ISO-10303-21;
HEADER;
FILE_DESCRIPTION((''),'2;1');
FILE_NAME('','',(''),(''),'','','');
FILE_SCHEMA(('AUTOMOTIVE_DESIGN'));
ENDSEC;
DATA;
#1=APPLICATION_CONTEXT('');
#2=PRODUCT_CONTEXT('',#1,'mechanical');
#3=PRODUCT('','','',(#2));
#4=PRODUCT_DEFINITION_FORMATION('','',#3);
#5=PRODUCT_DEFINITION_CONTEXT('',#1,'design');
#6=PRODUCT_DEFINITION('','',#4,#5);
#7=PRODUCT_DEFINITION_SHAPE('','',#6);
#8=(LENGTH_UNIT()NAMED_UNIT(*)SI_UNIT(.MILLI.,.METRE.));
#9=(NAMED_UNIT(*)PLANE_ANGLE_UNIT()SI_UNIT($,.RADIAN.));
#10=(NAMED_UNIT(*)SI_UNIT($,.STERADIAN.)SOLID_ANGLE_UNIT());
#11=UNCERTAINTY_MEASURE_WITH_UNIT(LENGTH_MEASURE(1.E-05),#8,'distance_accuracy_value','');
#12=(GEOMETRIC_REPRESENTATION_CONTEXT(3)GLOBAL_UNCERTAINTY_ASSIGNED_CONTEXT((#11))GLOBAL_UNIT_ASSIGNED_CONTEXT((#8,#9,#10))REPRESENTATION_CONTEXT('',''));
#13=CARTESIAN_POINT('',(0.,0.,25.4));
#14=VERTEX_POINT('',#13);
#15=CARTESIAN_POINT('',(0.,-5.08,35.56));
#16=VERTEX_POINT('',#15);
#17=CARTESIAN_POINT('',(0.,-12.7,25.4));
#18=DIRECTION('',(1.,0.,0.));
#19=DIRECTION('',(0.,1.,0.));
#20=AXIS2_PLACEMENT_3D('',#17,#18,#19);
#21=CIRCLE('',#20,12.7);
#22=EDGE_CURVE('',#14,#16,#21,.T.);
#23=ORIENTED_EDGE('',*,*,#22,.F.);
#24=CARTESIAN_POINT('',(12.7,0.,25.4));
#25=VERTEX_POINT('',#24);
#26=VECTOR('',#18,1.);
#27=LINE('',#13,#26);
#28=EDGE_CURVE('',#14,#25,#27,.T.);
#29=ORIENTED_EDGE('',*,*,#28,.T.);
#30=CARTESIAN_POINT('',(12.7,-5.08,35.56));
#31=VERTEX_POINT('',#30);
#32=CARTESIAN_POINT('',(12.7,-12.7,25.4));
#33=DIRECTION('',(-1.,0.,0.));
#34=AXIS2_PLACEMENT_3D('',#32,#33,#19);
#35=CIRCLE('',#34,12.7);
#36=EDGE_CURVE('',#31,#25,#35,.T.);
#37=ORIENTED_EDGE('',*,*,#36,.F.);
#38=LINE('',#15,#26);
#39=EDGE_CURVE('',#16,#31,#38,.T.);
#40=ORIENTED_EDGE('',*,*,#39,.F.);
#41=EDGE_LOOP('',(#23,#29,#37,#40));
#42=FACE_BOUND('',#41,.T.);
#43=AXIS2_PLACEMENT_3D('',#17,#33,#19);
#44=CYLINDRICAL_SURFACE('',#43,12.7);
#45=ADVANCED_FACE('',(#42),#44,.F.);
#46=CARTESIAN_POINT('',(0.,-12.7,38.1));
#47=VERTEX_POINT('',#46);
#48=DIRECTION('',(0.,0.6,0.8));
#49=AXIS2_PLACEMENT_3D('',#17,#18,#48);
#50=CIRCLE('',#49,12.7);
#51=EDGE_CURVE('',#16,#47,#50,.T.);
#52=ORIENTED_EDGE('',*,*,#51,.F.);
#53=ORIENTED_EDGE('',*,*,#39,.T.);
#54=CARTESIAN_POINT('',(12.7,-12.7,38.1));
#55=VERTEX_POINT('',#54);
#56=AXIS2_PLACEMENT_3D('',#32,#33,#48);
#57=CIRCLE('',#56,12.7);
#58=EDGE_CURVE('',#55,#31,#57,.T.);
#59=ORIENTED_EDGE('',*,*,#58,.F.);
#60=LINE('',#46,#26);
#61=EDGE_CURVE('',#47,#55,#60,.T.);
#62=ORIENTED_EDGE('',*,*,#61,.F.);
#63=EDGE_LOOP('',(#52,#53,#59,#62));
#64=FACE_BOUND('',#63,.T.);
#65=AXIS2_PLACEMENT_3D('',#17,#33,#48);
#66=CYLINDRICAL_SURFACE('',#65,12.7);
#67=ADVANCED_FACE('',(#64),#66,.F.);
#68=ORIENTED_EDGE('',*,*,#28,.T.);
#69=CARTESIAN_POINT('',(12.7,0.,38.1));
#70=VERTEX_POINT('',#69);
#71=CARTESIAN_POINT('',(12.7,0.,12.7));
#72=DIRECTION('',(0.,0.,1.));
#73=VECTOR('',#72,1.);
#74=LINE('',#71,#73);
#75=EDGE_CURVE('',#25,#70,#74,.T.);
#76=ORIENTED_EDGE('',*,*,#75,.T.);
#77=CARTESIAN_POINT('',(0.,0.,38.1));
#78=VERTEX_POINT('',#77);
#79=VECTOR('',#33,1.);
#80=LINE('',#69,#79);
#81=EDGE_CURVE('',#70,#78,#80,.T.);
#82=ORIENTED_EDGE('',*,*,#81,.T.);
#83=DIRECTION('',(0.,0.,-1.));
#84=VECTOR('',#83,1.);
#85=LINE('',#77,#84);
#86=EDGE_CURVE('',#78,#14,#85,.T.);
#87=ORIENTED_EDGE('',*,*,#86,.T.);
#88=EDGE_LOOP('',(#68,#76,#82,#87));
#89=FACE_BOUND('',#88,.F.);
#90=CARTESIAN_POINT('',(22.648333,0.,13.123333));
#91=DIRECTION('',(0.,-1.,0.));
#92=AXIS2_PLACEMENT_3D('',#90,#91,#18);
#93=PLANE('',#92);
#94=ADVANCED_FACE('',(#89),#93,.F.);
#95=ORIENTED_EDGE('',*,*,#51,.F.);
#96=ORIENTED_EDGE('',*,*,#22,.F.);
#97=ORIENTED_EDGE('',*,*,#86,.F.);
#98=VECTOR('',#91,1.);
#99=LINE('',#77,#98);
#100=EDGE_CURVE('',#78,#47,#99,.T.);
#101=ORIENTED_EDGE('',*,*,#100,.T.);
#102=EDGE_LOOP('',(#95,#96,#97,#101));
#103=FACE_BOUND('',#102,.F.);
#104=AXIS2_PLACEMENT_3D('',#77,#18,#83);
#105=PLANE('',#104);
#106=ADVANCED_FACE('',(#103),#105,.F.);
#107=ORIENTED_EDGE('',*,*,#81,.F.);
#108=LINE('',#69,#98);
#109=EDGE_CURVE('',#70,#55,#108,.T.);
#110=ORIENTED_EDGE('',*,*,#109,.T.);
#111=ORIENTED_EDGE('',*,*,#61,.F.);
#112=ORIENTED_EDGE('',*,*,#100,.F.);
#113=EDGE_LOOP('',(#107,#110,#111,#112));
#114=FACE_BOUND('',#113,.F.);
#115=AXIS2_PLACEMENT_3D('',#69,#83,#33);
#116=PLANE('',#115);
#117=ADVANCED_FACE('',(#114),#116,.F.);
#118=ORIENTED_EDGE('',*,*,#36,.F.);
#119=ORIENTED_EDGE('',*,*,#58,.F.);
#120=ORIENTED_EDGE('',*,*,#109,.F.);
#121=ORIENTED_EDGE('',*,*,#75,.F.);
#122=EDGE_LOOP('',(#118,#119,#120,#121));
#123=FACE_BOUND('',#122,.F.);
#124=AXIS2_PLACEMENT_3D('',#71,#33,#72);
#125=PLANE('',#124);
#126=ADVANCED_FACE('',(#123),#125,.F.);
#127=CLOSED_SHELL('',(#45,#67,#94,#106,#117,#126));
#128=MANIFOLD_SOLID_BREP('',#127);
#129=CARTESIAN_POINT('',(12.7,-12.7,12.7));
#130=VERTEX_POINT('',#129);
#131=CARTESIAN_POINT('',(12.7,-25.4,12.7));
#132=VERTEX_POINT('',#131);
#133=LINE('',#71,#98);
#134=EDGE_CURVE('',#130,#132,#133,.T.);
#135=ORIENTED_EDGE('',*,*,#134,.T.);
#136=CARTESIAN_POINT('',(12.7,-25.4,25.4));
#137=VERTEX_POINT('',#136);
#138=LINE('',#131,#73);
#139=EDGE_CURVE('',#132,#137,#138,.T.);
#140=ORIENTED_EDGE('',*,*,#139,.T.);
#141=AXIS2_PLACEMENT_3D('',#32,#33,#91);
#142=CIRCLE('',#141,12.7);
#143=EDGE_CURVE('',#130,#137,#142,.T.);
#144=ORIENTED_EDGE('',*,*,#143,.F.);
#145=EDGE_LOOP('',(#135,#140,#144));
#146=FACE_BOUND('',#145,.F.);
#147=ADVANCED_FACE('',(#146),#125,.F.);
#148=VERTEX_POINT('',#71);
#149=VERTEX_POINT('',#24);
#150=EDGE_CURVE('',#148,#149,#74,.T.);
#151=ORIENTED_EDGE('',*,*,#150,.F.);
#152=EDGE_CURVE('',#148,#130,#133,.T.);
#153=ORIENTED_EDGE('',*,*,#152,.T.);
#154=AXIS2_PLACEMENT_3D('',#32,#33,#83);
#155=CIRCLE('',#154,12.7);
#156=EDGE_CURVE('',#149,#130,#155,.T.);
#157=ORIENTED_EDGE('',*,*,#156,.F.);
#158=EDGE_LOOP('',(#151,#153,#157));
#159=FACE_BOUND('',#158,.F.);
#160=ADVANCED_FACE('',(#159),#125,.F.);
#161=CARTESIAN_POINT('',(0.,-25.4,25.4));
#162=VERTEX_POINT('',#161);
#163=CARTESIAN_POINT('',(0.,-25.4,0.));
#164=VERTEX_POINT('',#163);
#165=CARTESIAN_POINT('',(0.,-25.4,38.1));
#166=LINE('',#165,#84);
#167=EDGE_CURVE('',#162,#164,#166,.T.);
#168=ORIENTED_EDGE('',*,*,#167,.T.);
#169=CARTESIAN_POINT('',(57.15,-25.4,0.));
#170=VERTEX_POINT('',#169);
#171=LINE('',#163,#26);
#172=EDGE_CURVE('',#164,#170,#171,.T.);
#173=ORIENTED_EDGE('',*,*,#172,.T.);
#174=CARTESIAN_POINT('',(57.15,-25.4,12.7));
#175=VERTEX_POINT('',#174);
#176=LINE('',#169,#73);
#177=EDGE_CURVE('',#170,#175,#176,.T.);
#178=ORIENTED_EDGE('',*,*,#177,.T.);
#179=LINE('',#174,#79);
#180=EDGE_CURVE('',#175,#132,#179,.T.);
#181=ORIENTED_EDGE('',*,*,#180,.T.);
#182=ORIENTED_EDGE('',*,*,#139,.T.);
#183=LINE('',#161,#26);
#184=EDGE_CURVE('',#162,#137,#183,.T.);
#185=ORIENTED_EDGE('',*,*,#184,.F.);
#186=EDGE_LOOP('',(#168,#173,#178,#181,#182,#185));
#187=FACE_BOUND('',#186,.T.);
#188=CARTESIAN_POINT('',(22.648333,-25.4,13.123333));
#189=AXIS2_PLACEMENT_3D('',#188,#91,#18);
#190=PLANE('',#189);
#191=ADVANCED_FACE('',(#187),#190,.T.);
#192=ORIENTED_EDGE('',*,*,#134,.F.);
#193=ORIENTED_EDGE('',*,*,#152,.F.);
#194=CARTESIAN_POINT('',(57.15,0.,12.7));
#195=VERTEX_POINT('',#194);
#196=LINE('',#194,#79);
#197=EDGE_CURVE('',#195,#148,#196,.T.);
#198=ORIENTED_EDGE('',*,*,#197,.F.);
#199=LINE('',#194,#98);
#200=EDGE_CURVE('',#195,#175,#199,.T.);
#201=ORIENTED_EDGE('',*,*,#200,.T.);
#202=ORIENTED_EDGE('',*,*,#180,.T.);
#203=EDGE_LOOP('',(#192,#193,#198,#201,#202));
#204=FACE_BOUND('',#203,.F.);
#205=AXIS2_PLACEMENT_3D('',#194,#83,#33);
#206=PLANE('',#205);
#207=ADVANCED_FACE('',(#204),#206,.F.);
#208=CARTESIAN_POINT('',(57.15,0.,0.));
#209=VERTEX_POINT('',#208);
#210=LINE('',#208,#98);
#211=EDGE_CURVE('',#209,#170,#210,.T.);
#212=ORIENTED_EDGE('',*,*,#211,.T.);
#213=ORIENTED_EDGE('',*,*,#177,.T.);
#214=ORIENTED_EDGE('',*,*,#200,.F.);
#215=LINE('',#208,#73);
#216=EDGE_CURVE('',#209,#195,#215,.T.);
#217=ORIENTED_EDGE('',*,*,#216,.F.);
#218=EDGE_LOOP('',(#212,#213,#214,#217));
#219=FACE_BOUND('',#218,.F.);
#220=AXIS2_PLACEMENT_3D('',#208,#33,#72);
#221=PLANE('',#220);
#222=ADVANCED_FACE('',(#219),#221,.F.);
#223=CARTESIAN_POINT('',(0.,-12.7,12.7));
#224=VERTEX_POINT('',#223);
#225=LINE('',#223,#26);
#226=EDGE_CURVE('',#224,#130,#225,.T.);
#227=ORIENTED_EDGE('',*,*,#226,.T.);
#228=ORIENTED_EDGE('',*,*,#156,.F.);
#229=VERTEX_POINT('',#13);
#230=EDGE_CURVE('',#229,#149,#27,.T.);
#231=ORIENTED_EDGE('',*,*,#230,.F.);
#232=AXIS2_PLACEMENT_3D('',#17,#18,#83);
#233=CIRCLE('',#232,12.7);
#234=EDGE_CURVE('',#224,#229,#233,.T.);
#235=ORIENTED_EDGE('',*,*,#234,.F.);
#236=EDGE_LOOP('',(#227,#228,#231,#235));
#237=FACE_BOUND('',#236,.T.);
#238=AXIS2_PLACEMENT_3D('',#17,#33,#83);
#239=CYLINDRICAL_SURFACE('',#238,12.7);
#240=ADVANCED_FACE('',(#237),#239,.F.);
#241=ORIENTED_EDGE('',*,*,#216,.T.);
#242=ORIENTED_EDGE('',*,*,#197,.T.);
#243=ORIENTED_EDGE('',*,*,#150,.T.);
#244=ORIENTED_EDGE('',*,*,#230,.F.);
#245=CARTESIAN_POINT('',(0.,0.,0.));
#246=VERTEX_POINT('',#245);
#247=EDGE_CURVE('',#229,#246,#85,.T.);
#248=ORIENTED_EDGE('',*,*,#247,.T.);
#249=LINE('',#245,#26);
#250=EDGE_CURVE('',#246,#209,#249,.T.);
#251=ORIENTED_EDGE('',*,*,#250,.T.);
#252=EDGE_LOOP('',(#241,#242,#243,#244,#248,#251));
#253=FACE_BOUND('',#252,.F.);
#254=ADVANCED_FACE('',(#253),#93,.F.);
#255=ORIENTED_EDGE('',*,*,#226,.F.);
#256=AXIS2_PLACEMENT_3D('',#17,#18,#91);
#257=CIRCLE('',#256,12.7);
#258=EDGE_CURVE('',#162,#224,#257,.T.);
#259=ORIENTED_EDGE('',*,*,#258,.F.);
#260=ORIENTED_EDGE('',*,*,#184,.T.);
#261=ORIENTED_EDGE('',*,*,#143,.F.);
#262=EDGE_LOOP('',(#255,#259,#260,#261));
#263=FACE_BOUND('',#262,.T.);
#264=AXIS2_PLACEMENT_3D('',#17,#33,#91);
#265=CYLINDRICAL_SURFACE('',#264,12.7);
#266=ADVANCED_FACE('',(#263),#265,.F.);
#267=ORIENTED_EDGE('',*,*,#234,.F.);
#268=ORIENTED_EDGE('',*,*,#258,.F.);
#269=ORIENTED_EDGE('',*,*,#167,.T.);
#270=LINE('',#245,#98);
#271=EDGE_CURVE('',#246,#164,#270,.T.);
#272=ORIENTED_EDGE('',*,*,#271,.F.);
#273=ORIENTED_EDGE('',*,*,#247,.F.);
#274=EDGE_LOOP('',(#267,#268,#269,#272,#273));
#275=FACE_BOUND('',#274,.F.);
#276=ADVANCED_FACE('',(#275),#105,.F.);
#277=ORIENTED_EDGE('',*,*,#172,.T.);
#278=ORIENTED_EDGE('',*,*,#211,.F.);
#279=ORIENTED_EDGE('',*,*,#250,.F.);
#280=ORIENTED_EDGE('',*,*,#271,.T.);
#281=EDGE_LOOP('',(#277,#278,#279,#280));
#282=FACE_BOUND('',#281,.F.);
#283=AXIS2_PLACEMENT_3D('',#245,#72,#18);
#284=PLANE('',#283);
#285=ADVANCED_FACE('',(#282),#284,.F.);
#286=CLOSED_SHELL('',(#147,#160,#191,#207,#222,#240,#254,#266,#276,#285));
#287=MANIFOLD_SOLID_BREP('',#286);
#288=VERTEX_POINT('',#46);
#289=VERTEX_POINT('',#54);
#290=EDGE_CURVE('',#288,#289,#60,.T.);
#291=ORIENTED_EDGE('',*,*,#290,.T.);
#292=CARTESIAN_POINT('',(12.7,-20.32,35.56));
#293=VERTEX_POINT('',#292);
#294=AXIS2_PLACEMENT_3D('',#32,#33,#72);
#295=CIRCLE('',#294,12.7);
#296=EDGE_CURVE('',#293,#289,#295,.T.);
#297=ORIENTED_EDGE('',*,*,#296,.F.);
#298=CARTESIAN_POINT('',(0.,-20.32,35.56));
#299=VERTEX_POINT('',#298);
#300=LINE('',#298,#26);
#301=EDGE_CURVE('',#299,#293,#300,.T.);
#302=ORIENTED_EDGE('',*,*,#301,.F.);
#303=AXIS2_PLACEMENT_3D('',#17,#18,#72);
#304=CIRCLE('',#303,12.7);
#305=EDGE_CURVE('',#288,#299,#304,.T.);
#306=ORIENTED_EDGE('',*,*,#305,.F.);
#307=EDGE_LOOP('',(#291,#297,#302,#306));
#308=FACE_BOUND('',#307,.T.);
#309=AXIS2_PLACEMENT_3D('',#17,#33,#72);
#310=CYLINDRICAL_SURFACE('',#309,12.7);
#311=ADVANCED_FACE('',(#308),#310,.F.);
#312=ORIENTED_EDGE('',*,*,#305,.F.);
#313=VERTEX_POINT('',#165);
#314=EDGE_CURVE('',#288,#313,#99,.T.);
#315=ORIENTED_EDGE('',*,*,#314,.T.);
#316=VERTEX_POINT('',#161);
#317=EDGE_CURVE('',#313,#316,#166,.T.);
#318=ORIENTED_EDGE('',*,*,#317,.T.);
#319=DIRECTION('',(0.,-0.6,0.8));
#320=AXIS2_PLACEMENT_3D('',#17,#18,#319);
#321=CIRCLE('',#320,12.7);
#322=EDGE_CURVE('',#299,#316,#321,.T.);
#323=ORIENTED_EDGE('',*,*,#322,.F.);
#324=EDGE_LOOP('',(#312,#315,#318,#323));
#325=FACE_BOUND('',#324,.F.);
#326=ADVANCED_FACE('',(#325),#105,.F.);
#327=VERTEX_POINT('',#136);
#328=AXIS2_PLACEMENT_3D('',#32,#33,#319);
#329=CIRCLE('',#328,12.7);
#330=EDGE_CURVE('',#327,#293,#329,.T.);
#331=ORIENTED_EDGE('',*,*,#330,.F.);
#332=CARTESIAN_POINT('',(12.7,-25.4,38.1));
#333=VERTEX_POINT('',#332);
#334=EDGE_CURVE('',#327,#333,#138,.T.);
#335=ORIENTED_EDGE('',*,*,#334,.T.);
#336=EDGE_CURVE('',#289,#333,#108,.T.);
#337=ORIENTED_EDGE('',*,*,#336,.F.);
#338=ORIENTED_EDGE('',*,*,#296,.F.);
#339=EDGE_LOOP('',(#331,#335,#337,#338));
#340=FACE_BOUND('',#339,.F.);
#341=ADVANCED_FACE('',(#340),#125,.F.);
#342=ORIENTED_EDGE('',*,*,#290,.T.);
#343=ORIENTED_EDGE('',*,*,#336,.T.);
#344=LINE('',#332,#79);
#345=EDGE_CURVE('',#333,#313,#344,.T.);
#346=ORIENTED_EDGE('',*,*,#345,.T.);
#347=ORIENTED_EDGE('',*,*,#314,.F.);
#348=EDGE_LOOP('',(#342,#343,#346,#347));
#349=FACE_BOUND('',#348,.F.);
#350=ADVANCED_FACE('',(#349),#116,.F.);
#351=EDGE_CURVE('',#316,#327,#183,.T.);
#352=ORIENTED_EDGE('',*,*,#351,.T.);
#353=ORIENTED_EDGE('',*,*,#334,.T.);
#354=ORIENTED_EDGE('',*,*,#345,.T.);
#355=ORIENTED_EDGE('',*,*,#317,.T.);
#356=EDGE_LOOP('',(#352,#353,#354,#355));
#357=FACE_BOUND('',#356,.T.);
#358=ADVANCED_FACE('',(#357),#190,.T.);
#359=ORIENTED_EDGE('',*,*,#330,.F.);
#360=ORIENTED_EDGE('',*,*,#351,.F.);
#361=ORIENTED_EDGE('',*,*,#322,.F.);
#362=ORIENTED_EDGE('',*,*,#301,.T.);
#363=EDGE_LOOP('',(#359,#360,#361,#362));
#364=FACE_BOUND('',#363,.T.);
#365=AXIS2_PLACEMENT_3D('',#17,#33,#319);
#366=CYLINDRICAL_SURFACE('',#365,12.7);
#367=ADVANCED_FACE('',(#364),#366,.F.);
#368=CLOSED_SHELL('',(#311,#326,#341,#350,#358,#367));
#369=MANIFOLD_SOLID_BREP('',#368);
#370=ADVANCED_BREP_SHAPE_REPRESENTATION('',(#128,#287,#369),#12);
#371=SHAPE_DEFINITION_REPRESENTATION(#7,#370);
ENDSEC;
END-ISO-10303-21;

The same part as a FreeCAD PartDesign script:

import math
import FreeCAD as App
import Part
import Sketcher
Q = App.Units.Quantity


def add_polygon(sketch, points):
    """Adds a closed chain of lines whose ends are joined by coincident constraints."""
    first, n = sketch.GeometryCount, len(points)
    for a, b in zip(points, points[1:] + points[:1]):
        sketch.addGeometry(Part.LineSegment(App.Vector(*a, 0), App.Vector(*b, 0)), False)
    for i in range(n):
        sketch.addConstraint(Sketcher.Constraint("Coincident", first + i, 2, first + (i + 1) % n, 1))

doc = App.newDocument("Part")
params = doc.addObject("Spreadsheet::Sheet", "Params")
for row, (alias, value) in enumerate([
    ("sketch1_height", "1 in"),
    ("sketch1_width", "0.5 in"),
    ("sketch1_width2", "2.25 in"),
    ("pad1_length", "1 in"),
    ("sketch2_radius", "0.5 in"),
    ("sketch2_radius2", "0.3125 in"),
    ("sketch3_radius", "0.5 in"),
    ("pocket2_length", "1 in"),
], start=1):
    params.set(f"A{row}", alias)
    params.set(f"B{row}", "=" + value)
    params.setAlias(f"B{row}", alias)

body = doc.addObject("PartDesign::Body", "Body")
body.AllowCompound = True

sketch1 = doc.addObject("Sketcher::SketchObject", "Sketch")
body.addObject(sketch1)
sketch1.AttachmentSupport = (doc.XZ_Plane, [""])
sketch1.MapMode = "FlatFace"
add_polygon(sketch1, [(0, 38.1), (0, 0), (57.15, 0), (57.15, 12.7), (12.7, 12.7), (12.7, 38.1)])
sketch1.addConstraint([
    Sketcher.Constraint("Vertical", 0),
    Sketcher.Constraint("Horizontal", 1),
    Sketcher.Constraint("Vertical", 2),
    Sketcher.Constraint("Horizontal", 3),
    Sketcher.Constraint("Vertical", 4),
    Sketcher.Constraint("Horizontal", 5),
    Sketcher.Constraint("Coincident", 0, 2, -1, 1),
    Sketcher.Constraint("Equal", 5, 2),
    Sketcher.Constraint("DistanceY", 4, 1, 4, 2, Q("1 in")),
    Sketcher.Constraint("DistanceX", 5, 2, 5, 1, Q("0.5 in")),
    Sketcher.Constraint("DistanceX", 1, 1, 1, 2, Q("2.25 in")),
])
sketch1.setExpression("Constraints[14]", "Params.sketch1_height")
sketch1.setExpression("Constraints[15]", "Params.sketch1_width")
sketch1.setExpression("Constraints[16]", "Params.sketch1_width2")
pad1 = doc.addObject("PartDesign::Pad", "Pad")
body.addObject(pad1)
pad1.Profile = sketch1
pad1.setExpression("Length", "Params.pad1_length")

sketch2 = doc.addObject("Sketcher::SketchObject", "Sketch001")
body.addObject(sketch2)
sketch2.AttachmentSupport = (doc.YZ_Plane, [""])
sketch2.MapMode = "FlatFace"
sketch2.addGeometry([
    Part.ArcOfCircle(Part.Circle(App.Vector(-12.7, 25.4, 0), App.Vector(0, 0, 1), 12.7), math.radians(53.130102), math.radians(90)),
    Part.ArcOfCircle(Part.Circle(App.Vector(-12.7, 25.4, 0), App.Vector(0, 0, 1), 12.7), math.radians(90), math.radians(126.869898)),
    Part.ArcOfCircle(Part.Circle(App.Vector(-12.7, 33.3375, 0), App.Vector(0, 0, 1), 7.9375), math.radians(163.739795), math.radians(376.260205)),
], False)
sketch2.addConstraint([
    Sketcher.Constraint("Tangent", 0, 2, 1, 1),
    Sketcher.Constraint("Coincident", 1, 2, 2, 1),
    Sketcher.Constraint("Coincident", 2, 2, 0, 1),
    Sketcher.Constraint("Equal", 0, 1),
    Sketcher.Constraint("Horizontal", 1, 2, 2, 2),
    Sketcher.Constraint("Vertical", 2, 3, 0, 2),
    Sketcher.Constraint("Radius", 0, Q("0.5 in")),
    Sketcher.Constraint("DistanceY", -1, 1, 0, 3, Q("1 in")),
    Sketcher.Constraint("Radius", 2, Q("0.3125 in")),
    Sketcher.Constraint("DistanceX", 0, 3, -1, 1, Q("0.5 in")),
    Sketcher.Constraint("DistanceX", 1, 2, -1, 1, Q("0.8 in")),
])
sketch2.setExpression("Constraints[6]", "Params.sketch2_radius")
sketch2.setExpression("Constraints[8]", "Params.sketch2_radius2")
pocket1 = doc.addObject("PartDesign::Pocket", "Pocket")
body.addObject(pocket1)
pocket1.Profile = sketch2
pocket1.Type = "ThroughAll"
pocket1.Reversed = True

sketch3 = doc.addObject("Sketcher::SketchObject", "Sketch002")
body.addObject(sketch3)
sketch3.AttachmentSupport = (doc.YZ_Plane, [""])
sketch3.MapMode = "FlatFace"
sketch3.addGeometry([
    Part.ArcOfCircle(Part.Circle(App.Vector(-12.7, 25.4, 0), App.Vector(0, 0, 1), 12.7), math.radians(53.130102), math.radians(90)),
    Part.ArcOfCircle(Part.Circle(App.Vector(-12.7, 25.4, 0), App.Vector(0, 0, 1), 12.7), math.radians(90), math.radians(126.869898)),
    Part.ArcOfCircle(Part.Circle(App.Vector(-12.7, 25.4, 0), App.Vector(0, 0, 1), 12.7), math.radians(126.869898), math.radians(180)),
    Part.ArcOfCircle(Part.Circle(App.Vector(-12.7, 25.4, 0), App.Vector(0, 0, 1), 12.7), math.radians(180), math.radians(270)),
    Part.ArcOfCircle(Part.Circle(App.Vector(-12.7, 25.4, 0), App.Vector(0, 0, 1), 12.7), math.radians(-90), math.radians(0)),
    Part.ArcOfCircle(Part.Circle(App.Vector(-12.7, 25.4, 0), App.Vector(0, 0, 1), 12.7), math.radians(0), math.radians(53.130102)),
], False)
sketch3.addConstraint([
    Sketcher.Constraint("Tangent", 0, 2, 1, 1),
    Sketcher.Constraint("Tangent", 1, 2, 2, 1),
    Sketcher.Constraint("Tangent", 2, 2, 3, 1),
    Sketcher.Constraint("Tangent", 3, 2, 4, 1),
    Sketcher.Constraint("Tangent", 4, 2, 5, 1),
    Sketcher.Constraint("Tangent", 5, 2, 0, 1),
    Sketcher.Constraint("Coincident", 2, 3, 0, 3),
    Sketcher.Constraint("Equal", 2, 3),
    Sketcher.Constraint("PointOnObject", 4, 2, -2),
    Sketcher.Constraint("Horizontal", 5, 3, 2, 2),
    Sketcher.Constraint("Horizontal", 2, 2, 4, 2),
    Sketcher.Constraint("Horizontal", 1, 2, 5, 2),
    Sketcher.Constraint("Vertical", 5, 3, 0, 2),
    Sketcher.Constraint("Vertical", 0, 2, 3, 2),
    Sketcher.Constraint("Radius", 0, Q("0.5 in")),
    Sketcher.Constraint("DistanceY", -1, 1, 0, 3, Q("1 in")),
    Sketcher.Constraint("DistanceX", 1, 2, -1, 1, Q("0.8 in")),
])
sketch3.setExpression("Constraints[14]", "Params.sketch3_radius")
pocket2 = doc.addObject("PartDesign::Pocket", "Pocket001")
body.addObject(pocket2)
pocket2.Profile = sketch3
pocket2.setExpression("Length", "Params.pocket2_length")
pocket2.Reversed = True

doc.recompute()
